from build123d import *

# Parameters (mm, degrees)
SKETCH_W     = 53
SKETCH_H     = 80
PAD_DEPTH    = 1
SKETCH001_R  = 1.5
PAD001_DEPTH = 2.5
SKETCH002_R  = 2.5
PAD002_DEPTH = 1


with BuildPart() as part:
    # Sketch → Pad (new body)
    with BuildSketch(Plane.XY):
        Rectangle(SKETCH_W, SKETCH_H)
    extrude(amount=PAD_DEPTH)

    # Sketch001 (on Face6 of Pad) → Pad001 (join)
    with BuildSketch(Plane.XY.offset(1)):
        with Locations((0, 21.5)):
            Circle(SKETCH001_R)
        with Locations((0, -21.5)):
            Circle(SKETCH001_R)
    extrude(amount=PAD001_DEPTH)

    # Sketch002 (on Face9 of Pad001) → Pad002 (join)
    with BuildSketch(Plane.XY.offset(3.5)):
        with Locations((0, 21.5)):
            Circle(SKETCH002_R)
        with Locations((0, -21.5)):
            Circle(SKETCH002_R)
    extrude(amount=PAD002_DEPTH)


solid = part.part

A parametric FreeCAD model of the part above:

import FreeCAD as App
import Part
import Sketcher

V = App.Vector
Q = App.Units.Quantity


def add_polygon(sketch, points):
    """Adds a closed chain of lines whose ends are joined by coincident constraints."""
    first, n = sketch.GeometryCount, len(points)
    for a, b in zip(points, points[1:] + points[:1]):
        sketch.addGeometry(Part.LineSegment(App.Vector(*a, 0), App.Vector(*b, 0)), False)
    for i in range(n):
        sketch.addConstraint(Sketcher.Constraint("Coincident", first + i, 2, first + (i + 1) % n, 1))

doc = App.newDocument("Part")
body = doc.addObject("PartDesign::Body", "Body")

# Sketch on XY plane
sketch1 = body.newObject("Sketcher::SketchObject", "Sketch")
sketch1.AttachmentSupport = (doc.getObject("XY_Plane"), [""])
sketch1.MapMode = "FlatFace"
add_polygon(sketch1, [(-26.5, 40), (-26.5, -40), (26.5, -40), (26.5, 40)])  # lines 0-3
sketch1.addConstraint(Sketcher.Constraint("Vertical", 0))
sketch1.addConstraint(Sketcher.Constraint("Horizontal", 1))
sketch1.addConstraint(Sketcher.Constraint("Vertical", 2))
sketch1.addConstraint(Sketcher.Constraint("Horizontal", 3))
sketch1.addConstraint(Sketcher.Constraint("Symmetric", 0, 2, 2, 2, -1, 1))
sketch1.addConstraint(Sketcher.Constraint("DistanceX", 1, 1, 1, 2, Q("53 mm")))
sketch1.addConstraint(Sketcher.Constraint("DistanceY", 0, 2, 0, 1, Q("80 mm")))
pad1 = body.newObject("PartDesign::Pad", "Pad")
pad1.Profile = sketch1
pad1.Length = 1

# Sketch on XY plane
sketch2 = body.newObject("Sketcher::SketchObject", "Sketch001")
sketch2.AttachmentSupport = (doc.getObject("XY_Plane"), [""])
sketch2.MapMode = "FlatFace"
sketch2.AttachmentOffset = App.Placement(V(0, 0, 1), App.Rotation())
sketch2.addGeometry(Part.Circle(V(0, 21.5, 0), V(0, 0, 1), 1.5), False)
sketch2.addGeometry(Part.Circle(V(0, -21.5, 0), V(0, 0, 1), 1.5), False)
sketch2.addConstraint(Sketcher.Constraint("Equal", 0, 1))
sketch2.addConstraint(Sketcher.Constraint("Symmetric", 0, 3, 1, 3, -1, 1))
sketch2.addConstraint(Sketcher.Constraint("PointOnObject", 0, 3, -2))
sketch2.addConstraint(Sketcher.Constraint("Diameter", 0, Q("3 mm")))
sketch2.addConstraint(Sketcher.Constraint("DistanceY", 1, 3, 0, 3, Q("43 mm")))
pad2 = body.newObject("PartDesign::Pad", "Pad001")
pad2.Profile = sketch2
pad2.Length = 2.5

# Sketch on XY plane
sketch3 = body.newObject("Sketcher::SketchObject", "Sketch002")
sketch3.AttachmentSupport = (doc.getObject("XY_Plane"), [""])
sketch3.MapMode = "FlatFace"
sketch3.AttachmentOffset = App.Placement(V(0, 0, 3.5), App.Rotation())
sketch3.addGeometry(Part.Circle(V(0, 21.5, 0), V(0, 0, 1), 2.5), False)
sketch3.addGeometry(Part.Circle(V(0, -21.5, 0), V(0, 0, 1), 2.5), False)
sketch3.addConstraint(Sketcher.Constraint("Equal", 0, 1))
sketch3.addConstraint(Sketcher.Constraint("Symmetric", 0, 3, 1, 3, -1, 1))
sketch3.addConstraint(Sketcher.Constraint("PointOnObject", 0, 3, -2))
sketch3.addConstraint(Sketcher.Constraint("Diameter", 0, Q("5 mm")))
sketch3.addConstraint(Sketcher.Constraint("DistanceY", 1, 3, 0, 3, Q("43 mm")))
pad3 = body.newObject("PartDesign::Pad", "Pad002")
pad3.Profile = sketch3
pad3.Length = 1

doc.recompute()
